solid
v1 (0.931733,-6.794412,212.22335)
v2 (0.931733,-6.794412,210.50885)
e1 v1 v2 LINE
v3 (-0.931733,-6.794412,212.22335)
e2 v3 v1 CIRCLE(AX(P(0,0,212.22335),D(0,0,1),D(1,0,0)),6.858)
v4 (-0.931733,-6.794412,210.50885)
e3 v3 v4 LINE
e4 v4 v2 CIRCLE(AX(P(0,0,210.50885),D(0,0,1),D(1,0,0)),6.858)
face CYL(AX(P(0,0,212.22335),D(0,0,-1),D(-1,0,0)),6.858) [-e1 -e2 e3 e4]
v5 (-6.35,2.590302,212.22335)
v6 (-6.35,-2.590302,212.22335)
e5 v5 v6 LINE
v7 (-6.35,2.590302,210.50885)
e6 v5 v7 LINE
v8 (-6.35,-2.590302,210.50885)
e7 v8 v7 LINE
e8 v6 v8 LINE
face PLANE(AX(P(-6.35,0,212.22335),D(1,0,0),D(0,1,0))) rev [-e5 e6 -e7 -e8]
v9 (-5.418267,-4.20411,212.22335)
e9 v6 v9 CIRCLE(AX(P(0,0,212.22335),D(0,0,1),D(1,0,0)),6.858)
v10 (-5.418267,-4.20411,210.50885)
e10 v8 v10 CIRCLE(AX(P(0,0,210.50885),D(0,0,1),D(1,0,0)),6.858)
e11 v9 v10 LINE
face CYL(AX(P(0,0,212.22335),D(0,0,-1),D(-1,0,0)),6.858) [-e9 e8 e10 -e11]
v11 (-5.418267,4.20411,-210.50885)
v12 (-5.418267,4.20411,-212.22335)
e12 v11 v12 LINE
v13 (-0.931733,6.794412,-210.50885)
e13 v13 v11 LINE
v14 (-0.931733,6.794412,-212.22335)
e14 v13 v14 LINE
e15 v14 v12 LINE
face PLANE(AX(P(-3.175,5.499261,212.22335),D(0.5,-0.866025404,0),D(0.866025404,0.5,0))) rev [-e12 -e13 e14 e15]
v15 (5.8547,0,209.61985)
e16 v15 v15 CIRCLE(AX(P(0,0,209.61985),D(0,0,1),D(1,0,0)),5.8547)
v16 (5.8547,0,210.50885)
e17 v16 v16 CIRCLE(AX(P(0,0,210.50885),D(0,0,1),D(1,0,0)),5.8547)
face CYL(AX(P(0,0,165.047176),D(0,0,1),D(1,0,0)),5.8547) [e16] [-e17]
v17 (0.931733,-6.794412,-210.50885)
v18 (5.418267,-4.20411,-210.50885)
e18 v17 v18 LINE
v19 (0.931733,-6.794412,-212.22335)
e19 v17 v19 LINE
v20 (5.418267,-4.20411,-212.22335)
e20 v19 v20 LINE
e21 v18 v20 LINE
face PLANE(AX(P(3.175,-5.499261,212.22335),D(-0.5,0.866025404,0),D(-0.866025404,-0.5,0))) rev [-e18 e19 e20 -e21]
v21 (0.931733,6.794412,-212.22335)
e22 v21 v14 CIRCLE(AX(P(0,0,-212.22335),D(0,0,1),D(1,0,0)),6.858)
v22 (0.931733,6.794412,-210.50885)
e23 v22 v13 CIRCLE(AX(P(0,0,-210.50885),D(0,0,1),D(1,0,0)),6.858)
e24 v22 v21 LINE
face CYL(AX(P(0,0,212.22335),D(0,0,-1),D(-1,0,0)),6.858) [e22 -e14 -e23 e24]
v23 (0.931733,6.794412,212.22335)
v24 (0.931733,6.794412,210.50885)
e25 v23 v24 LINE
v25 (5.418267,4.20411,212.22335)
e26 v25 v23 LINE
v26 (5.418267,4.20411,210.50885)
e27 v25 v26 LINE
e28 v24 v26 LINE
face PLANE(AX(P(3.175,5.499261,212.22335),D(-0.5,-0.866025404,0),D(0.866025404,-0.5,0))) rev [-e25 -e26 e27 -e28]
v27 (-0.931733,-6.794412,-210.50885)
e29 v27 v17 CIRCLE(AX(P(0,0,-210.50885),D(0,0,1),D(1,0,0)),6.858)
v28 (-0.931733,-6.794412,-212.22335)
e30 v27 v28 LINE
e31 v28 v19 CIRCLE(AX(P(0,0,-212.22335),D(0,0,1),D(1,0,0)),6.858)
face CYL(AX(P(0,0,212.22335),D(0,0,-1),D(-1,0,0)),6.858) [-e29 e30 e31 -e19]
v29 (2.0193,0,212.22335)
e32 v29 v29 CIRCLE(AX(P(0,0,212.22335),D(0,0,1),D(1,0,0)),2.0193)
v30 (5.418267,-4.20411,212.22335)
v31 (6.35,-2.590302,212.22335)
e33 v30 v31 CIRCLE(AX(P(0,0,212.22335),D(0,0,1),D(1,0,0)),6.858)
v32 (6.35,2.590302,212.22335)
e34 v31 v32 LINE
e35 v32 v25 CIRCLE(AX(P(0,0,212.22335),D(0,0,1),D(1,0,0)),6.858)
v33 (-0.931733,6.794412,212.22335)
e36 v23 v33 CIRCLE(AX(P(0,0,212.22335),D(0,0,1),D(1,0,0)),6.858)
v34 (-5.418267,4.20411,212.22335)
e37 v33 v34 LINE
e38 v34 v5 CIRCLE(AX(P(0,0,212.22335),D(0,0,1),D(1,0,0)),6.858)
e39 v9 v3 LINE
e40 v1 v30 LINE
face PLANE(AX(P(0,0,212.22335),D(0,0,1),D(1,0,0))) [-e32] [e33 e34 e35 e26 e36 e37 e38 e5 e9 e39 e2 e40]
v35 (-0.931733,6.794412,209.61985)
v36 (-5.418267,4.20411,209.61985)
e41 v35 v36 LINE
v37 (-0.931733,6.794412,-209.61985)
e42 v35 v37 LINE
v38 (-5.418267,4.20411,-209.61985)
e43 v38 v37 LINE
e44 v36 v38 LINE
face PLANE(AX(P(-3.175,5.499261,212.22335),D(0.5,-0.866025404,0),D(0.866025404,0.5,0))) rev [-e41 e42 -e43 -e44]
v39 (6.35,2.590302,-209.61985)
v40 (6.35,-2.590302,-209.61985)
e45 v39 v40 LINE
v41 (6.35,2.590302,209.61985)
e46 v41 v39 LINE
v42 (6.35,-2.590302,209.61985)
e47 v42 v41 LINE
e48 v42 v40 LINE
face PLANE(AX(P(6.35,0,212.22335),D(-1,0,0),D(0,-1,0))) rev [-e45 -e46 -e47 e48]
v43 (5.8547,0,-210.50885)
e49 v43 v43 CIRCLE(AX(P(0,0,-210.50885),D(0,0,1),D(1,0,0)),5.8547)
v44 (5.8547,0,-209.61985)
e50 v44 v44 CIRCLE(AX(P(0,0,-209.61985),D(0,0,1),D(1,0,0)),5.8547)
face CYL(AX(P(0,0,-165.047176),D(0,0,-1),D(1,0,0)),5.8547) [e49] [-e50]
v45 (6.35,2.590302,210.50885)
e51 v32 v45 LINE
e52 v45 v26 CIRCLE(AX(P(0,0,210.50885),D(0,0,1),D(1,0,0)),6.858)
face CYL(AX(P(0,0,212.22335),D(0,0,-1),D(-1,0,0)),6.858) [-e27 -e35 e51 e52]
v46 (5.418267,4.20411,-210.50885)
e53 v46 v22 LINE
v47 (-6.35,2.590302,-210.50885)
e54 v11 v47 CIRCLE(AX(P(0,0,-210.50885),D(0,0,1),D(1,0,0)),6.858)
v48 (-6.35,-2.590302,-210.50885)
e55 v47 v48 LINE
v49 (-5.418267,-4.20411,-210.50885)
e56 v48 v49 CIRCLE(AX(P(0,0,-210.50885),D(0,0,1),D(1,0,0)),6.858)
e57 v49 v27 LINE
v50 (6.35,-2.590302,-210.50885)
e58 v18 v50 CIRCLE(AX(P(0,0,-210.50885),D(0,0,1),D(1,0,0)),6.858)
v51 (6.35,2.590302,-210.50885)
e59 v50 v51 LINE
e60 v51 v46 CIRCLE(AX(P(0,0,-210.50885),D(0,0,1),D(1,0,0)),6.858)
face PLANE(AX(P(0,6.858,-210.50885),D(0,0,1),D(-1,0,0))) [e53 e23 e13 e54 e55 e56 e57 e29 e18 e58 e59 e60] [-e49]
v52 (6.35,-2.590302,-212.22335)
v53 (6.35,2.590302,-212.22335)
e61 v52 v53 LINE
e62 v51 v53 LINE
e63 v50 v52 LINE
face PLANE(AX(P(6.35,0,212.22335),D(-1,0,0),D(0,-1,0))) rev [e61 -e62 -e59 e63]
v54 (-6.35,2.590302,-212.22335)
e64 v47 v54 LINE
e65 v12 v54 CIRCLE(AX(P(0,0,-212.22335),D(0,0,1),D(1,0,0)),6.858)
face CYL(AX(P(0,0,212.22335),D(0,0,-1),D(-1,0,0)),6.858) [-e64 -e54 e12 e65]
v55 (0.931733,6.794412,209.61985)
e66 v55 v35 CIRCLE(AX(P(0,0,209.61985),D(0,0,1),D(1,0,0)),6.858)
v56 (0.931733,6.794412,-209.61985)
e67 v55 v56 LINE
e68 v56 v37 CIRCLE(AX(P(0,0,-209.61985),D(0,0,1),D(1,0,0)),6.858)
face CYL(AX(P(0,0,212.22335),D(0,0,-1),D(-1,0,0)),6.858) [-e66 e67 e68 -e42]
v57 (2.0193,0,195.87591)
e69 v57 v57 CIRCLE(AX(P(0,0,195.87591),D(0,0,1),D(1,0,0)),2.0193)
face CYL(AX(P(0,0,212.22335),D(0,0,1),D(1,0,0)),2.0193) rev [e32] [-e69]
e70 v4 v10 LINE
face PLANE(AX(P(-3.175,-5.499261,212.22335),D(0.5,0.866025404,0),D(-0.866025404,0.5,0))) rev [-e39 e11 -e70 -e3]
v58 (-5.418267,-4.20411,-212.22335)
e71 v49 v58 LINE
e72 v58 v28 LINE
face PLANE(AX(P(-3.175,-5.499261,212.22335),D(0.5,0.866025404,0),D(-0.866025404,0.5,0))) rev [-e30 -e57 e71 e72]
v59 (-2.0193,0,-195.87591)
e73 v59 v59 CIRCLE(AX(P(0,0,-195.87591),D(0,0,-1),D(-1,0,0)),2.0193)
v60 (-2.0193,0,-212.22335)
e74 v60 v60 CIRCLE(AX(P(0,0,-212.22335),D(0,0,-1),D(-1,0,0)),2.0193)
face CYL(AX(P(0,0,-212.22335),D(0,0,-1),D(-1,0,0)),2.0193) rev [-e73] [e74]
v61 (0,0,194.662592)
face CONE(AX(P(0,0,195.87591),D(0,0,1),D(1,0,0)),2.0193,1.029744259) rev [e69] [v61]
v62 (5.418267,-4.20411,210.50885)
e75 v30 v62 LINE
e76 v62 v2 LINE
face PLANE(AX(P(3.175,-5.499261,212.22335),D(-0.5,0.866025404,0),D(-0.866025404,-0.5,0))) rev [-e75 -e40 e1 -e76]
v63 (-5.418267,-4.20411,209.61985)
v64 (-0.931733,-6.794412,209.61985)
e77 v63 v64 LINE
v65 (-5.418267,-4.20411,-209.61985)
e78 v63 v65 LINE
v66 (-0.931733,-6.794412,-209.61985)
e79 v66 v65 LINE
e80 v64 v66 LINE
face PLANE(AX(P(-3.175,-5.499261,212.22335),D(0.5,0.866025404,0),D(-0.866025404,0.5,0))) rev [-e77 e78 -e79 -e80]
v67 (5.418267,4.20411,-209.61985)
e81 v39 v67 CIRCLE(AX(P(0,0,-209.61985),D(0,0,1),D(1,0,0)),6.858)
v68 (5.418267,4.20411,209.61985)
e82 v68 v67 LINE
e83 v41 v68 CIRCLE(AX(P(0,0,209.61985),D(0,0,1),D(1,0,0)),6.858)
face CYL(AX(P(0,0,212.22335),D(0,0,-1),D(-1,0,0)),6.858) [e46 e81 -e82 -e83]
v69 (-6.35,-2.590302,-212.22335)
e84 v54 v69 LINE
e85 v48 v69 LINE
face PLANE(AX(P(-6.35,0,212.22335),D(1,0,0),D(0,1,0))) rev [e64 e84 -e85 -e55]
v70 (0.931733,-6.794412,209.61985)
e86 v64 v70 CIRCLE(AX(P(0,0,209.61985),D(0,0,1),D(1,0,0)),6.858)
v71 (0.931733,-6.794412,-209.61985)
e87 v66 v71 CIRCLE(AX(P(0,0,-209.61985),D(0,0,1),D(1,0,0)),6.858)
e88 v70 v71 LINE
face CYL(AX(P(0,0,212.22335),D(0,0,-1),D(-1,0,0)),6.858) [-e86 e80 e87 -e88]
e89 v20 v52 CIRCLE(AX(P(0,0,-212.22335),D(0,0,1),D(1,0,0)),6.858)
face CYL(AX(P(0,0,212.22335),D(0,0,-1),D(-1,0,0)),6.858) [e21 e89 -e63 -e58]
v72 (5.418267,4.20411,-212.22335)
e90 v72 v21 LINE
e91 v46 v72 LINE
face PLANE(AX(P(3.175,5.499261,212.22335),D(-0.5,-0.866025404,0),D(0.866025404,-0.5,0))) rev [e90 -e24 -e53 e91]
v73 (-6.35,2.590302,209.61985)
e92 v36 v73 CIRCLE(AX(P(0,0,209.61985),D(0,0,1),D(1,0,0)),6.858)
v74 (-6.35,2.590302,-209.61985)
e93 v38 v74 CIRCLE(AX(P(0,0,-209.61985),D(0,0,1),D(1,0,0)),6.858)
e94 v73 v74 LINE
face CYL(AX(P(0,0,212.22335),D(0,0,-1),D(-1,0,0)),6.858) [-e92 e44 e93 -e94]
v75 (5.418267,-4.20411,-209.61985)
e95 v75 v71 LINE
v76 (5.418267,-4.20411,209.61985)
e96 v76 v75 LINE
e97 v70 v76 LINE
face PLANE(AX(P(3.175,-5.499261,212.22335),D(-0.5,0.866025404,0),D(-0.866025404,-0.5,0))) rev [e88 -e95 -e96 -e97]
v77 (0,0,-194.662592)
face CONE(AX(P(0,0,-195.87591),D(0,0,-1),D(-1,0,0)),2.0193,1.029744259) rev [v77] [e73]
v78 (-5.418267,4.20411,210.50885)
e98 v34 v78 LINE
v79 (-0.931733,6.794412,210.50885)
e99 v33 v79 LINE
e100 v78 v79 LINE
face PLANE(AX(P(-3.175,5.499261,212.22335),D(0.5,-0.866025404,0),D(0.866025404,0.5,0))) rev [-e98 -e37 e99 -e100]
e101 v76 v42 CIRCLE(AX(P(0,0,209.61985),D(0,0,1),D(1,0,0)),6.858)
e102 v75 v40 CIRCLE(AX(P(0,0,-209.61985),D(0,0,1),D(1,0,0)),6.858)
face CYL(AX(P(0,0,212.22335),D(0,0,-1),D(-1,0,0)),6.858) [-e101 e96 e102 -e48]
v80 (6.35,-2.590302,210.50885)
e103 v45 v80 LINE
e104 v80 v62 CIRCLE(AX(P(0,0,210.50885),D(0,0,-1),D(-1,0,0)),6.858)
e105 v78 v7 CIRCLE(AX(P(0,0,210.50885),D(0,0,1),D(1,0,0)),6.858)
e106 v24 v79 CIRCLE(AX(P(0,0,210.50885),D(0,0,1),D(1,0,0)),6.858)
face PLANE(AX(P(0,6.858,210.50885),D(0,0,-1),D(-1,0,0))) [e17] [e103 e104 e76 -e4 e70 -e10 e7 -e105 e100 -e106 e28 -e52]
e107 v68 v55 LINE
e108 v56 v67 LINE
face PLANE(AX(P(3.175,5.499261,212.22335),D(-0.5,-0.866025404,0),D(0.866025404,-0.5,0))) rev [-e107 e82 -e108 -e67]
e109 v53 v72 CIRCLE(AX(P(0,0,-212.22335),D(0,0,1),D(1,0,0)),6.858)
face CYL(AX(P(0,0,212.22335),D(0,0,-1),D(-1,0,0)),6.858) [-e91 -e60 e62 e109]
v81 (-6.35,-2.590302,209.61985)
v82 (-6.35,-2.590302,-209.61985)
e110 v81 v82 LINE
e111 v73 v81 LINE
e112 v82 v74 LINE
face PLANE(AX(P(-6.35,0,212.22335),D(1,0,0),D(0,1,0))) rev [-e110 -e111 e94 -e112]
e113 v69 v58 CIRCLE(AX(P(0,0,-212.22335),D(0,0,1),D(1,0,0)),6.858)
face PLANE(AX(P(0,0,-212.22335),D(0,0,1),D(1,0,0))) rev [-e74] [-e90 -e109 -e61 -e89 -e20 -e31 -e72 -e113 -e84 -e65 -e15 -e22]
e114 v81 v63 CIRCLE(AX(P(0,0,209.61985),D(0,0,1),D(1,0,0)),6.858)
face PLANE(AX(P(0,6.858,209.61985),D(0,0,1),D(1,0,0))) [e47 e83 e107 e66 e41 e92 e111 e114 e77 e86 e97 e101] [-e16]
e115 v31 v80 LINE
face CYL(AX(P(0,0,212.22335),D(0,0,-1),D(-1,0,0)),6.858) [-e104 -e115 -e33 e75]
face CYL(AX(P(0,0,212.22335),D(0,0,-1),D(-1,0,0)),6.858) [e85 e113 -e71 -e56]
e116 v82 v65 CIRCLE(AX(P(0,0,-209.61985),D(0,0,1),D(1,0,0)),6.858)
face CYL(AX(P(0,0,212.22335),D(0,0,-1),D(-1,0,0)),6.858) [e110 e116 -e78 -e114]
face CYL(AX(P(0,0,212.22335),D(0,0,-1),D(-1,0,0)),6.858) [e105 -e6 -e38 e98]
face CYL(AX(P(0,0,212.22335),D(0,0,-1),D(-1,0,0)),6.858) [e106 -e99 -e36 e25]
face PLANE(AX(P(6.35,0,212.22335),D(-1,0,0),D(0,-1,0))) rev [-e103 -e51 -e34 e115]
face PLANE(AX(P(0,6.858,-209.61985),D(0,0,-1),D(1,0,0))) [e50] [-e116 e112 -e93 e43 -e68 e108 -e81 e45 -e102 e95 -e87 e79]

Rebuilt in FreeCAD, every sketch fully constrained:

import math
import FreeCAD as App
import Part
import Sketcher

V = App.Vector
Q = App.Units.Quantity

doc = App.newDocument("Part")
body = doc.addObject("PartDesign::Body", "Body")

# Sketch on XY plane
sketch1 = body.newObject("Sketcher::SketchObject", "Sketch")
sketch1.AttachmentSupport = (doc.getObject("XY_Plane"), [""])
sketch1.MapMode = "FlatFace"
sketch1.addGeometry([
    Part.ArcOfCircle(Part.Circle(V(0, 0, 0), V(0, 0, 1), 6.858), math.radians(82.191607), math.radians(97.808393)),  # 0
    Part.LineSegment(V(-0.931733, 6.794412, 0), V(-5.418267, 4.20411, 0)),  # 1
    Part.ArcOfCircle(Part.Circle(V(0, 0, 0), V(0, 0, 1), 6.858), math.radians(142.191607), math.radians(157.808393)),  # 2
    Part.LineSegment(V(-6.35, 2.590302, 0), V(-6.35, -2.590302, 0)),  # 3
    Part.ArcOfCircle(Part.Circle(V(0, 0, 0), V(0, 0, 1), 6.858), math.radians(-157.808393), math.radians(-142.191607)),  # 4
    Part.LineSegment(V(-5.418267, -4.20411, 0), V(-0.931733, -6.794412, 0)),  # 5
    Part.ArcOfCircle(Part.Circle(V(0, 0, 0), V(0, 0, 1), 6.858), math.radians(-97.808393), math.radians(-82.191607)),  # 6
    Part.LineSegment(V(0.931733, -6.794412, 0), V(5.418267, -4.20411, 0)),  # 7
    Part.ArcOfCircle(Part.Circle(V(0, 0, 0), V(0, 0, 1), 6.858), math.radians(-37.808393), math.radians(-22.191607)),  # 8
    Part.LineSegment(V(6.35, -2.590302, 0), V(6.35, 2.590302, 0)),  # 9
    Part.ArcOfCircle(Part.Circle(V(0, 0, 0), V(0, 0, 1), 6.858), math.radians(22.191607), math.radians(37.808393)),  # 10
    Part.LineSegment(V(5.418267, 4.20411, 0), V(0.931733, 6.794412, 0)),  # 11
], False)
sketch1.addConstraint([
    Sketcher.Constraint("Coincident", 0, 2, 1, 1),
    Sketcher.Constraint("Coincident", 1, 2, 2, 1),
    Sketcher.Constraint("Coincident", 2, 2, 3, 1),
    Sketcher.Constraint("Coincident", 3, 2, 4, 1),
    Sketcher.Constraint("Coincident", 4, 2, 5, 1),
    Sketcher.Constraint("Coincident", 5, 2, 6, 1),
    Sketcher.Constraint("Coincident", 6, 2, 7, 1),
    Sketcher.Constraint("Coincident", 7, 2, 8, 1),
    Sketcher.Constraint("Coincident", 8, 2, 9, 1),
    Sketcher.Constraint("Coincident", 9, 2, 10, 1),
    Sketcher.Constraint("Coincident", 10, 2, 11, 1),
    Sketcher.Constraint("Coincident", 11, 2, 0, 1),
    Sketcher.Constraint("Vertical", 3),
    Sketcher.Constraint("Vertical", 9),
    Sketcher.Constraint("Coincident", 0, 3, -1, 1),
    Sketcher.Constraint("Coincident", 2, 3, -1, 1),
    Sketcher.Constraint("Coincident", 4, 3, -1, 1),
    Sketcher.Constraint("Coincident", 6, 3, -1, 1),
    Sketcher.Constraint("Coincident", 8, 3, -1, 1),
    Sketcher.Constraint("Coincident", 10, 3, -1, 1),
    Sketcher.Constraint("Equal", 0, 2),
    Sketcher.Constraint("Equal", 2, 4),
    Sketcher.Constraint("Equal", 4, 6),
    Sketcher.Constraint("Equal", 6, 8),
    Sketcher.Constraint("Equal", 8, 10),
    Sketcher.Constraint("Parallel", 1, 7),
    Sketcher.Constraint("Parallel", 5, 11),
    Sketcher.Constraint("Horizontal", 5, 2, 6, 2),
    Sketcher.Constraint("Horizontal", 4, 2, 7, 2),
    Sketcher.Constraint("Horizontal", 3, 2, 8, 2),
    Sketcher.Constraint("Horizontal", 1, 2, 10, 2),
    Sketcher.Constraint("Vertical", 1, 2, 4, 2),
    Sketcher.Constraint("Radius", 0, Q("0.27 in")),
    Sketcher.Constraint("Angle", 1, Q("-150 deg")),
    Sketcher.Constraint("DistanceX", 2, 2, -1, 1, Q("0.25 in")),
    Sketcher.Constraint("DistanceX", 4, 2, 6, 2, Q("0.25 in")),
])
pad1 = body.newObject("PartDesign::Pad", "Pad")
pad1.Profile = sketch1
pad1.Length = Q("16.7105 in")
pad1.Midplane = True

# Sketch on XY plane
sketch2 = body.newObject("Sketcher::SketchObject", "Sketch001")
sketch2.AttachmentSupport = (doc.getObject("XY_Plane"), [""])
sketch2.MapMode = "FlatFace"
sketch2.AttachmentOffset = App.Placement(V(0, 0, 212.22335), App.Rotation())
sketch2.addGeometry(Part.Circle(V(0, 0, 0), V(0, 0, 1), 2.0193), False)
sketch2.addConstraint([
    Sketcher.Constraint("Coincident", 0, 3, -1, 1),
    Sketcher.Constraint("Diameter", 0, Q("0.159 in")),
])
doc.recompute()
hole = body.newObject("PartDesign::Hole", "Hole")
hole.Profile = sketch2
hole.ThreadType = "None"
hole.Diameter = Q("0.159 in")
hole.DepthType = "Dimension"
hole.Depth = Q("0.6436 in")
hole.DrillPoint = "Angled"
hole.DrillPointAngle = 118

# Sketch on XY plane
sketch3 = body.newObject("Sketcher::SketchObject", "Sketch002")
sketch3.AttachmentSupport = (doc.getObject("XY_Plane"), [""])
sketch3.MapMode = "FlatFace"
sketch3.AttachmentOffset = App.Placement(V(0, 0, -212.22335), App.Rotation())
sketch3.addGeometry(Part.Circle(V(0, 0, 0), V(0, 0, 1), 2.0193), False)
sketch3.addConstraint([
    Sketcher.Constraint("Coincident", 0, 3, -1, 1),
    Sketcher.Constraint("Diameter", 0, Q("0.159 in")),
])
doc.recompute()
hole2 = body.newObject("PartDesign::Hole", "Hole001")
hole2.Profile = sketch3
hole2.ThreadType = "None"
hole2.Diameter = Q("0.159 in")
hole2.DepthType = "Dimension"
hole2.Depth = Q("0.6436 in")
hole2.DrillPoint = "Angled"
hole2.DrillPointAngle = 118
hole2.Reversed = True

# Sketch on YZ plane
sketch4 = body.newObject("Sketcher::SketchObject", "Sketch003")
sketch4.AttachmentSupport = (doc.getObject("YZ_Plane"), [""])
sketch4.MapMode = "FlatFace"
sketch4.addGeometry([
    Part.LineSegment(V(6.858, 210.50885, 0), V(5.8547, 210.50885, 0)),
    Part.LineSegment(V(5.8547, 210.50885, 0), V(5.8547, 209.61985, 0)),
    Part.LineSegment(V(5.8547, 209.61985, 0), V(6.858, 209.61985, 0)),
    Part.LineSegment(V(6.858, 209.61985, 0), V(6.858, 210.50885, 0)),
], False)
sketch4.addConstraint([
    Sketcher.Constraint("Coincident", 0, 2, 1, 1),
    Sketcher.Constraint("Coincident", 1, 2, 2, 1),
    Sketcher.Constraint("Coincident", 2, 2, 3, 1),
    Sketcher.Constraint("Coincident", 3, 2, 0, 1),
    Sketcher.Constraint("Horizontal", 0),
    Sketcher.Constraint("Vertical", 1),
    Sketcher.Constraint("Horizontal", 2),
    Sketcher.Constraint("Vertical", 3),
    Sketcher.Constraint("DistanceY", 1, 2, 1, 1, Q("0.035 in")),
    Sketcher.Constraint("DistanceX", -1, 1, 2, 2, Q("0.27 in")),
    Sketcher.Constraint("DistanceX", 0, 2, 0, 1, Q("0.0395 in")),
    Sketcher.Constraint("DistanceY", -1, 1, 0, 2, Q("210.50885 mm")),
])
groove = body.newObject("PartDesign::Groove", "Groove")
groove.Profile = sketch4
groove.ReferenceAxis = (sketch4, ["V_Axis"])
groove.Angle = 360
doc.recompute()

mirrored = body.newObject("PartDesign::Mirrored", "Mirrored")
mirrored.Originals = [groove]
mirrored.MirrorPlane = (doc.getObject("XY_Plane"), [""])
body.Tip = mirrored

doc.recompute()
